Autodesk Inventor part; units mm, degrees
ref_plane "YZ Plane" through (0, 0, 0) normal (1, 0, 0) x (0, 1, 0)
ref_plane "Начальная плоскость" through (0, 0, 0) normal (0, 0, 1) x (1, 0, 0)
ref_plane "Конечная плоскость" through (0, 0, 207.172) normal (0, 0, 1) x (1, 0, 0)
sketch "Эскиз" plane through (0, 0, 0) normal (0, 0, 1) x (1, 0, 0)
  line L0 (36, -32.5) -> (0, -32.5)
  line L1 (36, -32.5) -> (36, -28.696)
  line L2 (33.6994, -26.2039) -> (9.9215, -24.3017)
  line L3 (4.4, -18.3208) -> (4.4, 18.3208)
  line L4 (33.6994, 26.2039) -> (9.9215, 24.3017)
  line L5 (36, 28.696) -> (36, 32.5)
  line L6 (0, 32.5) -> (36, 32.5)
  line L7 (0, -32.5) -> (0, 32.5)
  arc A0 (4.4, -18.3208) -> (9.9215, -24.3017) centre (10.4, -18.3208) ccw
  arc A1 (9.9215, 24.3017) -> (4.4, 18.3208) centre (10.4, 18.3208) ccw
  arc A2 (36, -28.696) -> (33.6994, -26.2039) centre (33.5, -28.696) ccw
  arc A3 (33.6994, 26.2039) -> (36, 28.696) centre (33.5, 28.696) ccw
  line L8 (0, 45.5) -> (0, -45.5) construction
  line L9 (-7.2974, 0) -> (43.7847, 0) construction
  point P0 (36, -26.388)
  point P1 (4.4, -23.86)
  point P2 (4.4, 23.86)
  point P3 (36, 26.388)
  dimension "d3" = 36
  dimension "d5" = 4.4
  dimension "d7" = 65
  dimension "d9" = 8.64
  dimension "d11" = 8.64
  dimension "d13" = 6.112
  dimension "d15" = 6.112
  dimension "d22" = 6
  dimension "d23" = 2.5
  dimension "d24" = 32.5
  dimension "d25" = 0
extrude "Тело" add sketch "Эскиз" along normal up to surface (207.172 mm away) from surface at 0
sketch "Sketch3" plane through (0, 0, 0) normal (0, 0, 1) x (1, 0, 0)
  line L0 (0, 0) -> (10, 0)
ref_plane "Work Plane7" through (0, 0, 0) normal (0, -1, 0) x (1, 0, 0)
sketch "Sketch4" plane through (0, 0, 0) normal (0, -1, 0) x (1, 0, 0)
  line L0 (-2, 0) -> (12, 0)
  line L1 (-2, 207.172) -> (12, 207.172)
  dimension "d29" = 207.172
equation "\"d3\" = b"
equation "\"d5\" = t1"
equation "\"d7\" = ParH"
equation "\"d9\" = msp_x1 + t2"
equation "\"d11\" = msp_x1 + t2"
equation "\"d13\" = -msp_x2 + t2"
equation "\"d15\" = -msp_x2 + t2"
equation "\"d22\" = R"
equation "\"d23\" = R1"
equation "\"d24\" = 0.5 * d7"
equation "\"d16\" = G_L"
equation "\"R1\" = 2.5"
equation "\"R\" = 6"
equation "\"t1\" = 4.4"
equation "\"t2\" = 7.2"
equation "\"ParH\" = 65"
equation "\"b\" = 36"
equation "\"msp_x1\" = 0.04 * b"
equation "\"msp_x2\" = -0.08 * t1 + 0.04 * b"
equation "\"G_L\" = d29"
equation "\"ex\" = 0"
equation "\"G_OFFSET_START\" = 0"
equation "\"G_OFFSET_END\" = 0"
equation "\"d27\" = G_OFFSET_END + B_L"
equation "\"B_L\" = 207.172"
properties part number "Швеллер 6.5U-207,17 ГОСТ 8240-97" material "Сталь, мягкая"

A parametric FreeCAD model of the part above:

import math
import FreeCAD as App
import Part
import Sketcher
Q = App.Units.Quantity

doc = App.newDocument("Part")
body = doc.addObject("PartDesign::Body", "Body")

# Sketch on XY plane
sketch1 = doc.addObject("Sketcher::SketchObject", "Sketch")
body.addObject(sketch1)
sketch1.AttachmentSupport = (doc.XY_Plane, [""])
sketch1.MapMode = "FlatFace"
sketch1.addGeometry(Part.LineSegment(App.Vector(0, -32.5, 0), App.Vector(36, -32.5, 0)), False)
sketch1.addGeometry(Part.LineSegment(App.Vector(36, -32.5, 0), App.Vector(36, -28.696, 0)), False)
sketch1.addGeometry(Part.ArcOfCircle(Part.Circle(App.Vector(33.5, -28.696, 0), App.Vector(0, 0, 1), 2.5), math.radians(0), math.radians(85.425348)), False)
sketch1.addGeometry(Part.LineSegment(App.Vector(33.6994, -26.2039, 0), App.Vector(9.9215, -24.3017, 0)), False)
sketch1.addGeometry(Part.ArcOfCircle(Part.Circle(App.Vector(10.4, -18.3208, 0), App.Vector(0, 0, 1), 6), math.radians(180), math.radians(265.425812)), False)
sketch1.addGeometry(Part.LineSegment(App.Vector(4.4, -18.3208, 0), App.Vector(4.4, 18.3208, 0)), False)
sketch1.addGeometry(Part.ArcOfCircle(Part.Circle(App.Vector(10.4, 18.3208, 0), App.Vector(0, 0, 1), 6.000011), math.radians(94.574188), math.radians(180)), False)
sketch1.addGeometry(Part.LineSegment(App.Vector(9.9215, 24.3017, 0), App.Vector(33.6994, 26.2039, 0)), False)
sketch1.addGeometry(Part.ArcOfCircle(Part.Circle(App.Vector(33.5, 28.696, 0), App.Vector(0, 0, 1), 2.500065), math.radians(-85.425348), math.radians(0)), False)
sketch1.addGeometry(Part.LineSegment(App.Vector(36, 28.696, 0), App.Vector(36, 32.5, 0)), False)
sketch1.addGeometry(Part.LineSegment(App.Vector(36, 32.5, 0), App.Vector(0, 32.5, 0)), False)
sketch1.addGeometry(Part.LineSegment(App.Vector(0, 32.5, 0), App.Vector(0, -32.5, 0)), False)
sketch1.addConstraint(Sketcher.Constraint("Coincident", 0, 2, 1, 1))
sketch1.addConstraint(Sketcher.Constraint("Tangent", 1, 2, 2, 1))
sketch1.addConstraint(Sketcher.Constraint("Tangent", 2, 2, 3, 1))
sketch1.addConstraint(Sketcher.Constraint("Tangent", 3, 2, 4, 2))
sketch1.addConstraint(Sketcher.Constraint("Tangent", 4, 1, 5, 1))
sketch1.addConstraint(Sketcher.Constraint("Tangent", 5, 2, 6, 2))
sketch1.addConstraint(Sketcher.Constraint("Tangent", 6, 1, 7, 1))
sketch1.addConstraint(Sketcher.Constraint("Tangent", 7, 2, 8, 1))
sketch1.addConstraint(Sketcher.Constraint("Tangent", 8, 2, 9, 1))
sketch1.addConstraint(Sketcher.Constraint("Coincident", 9, 2, 10, 1))
sketch1.addConstraint(Sketcher.Constraint("Coincident", 10, 2, 11, 1))
sketch1.addConstraint(Sketcher.Constraint("Coincident", 11, 2, 0, 1))
sketch1.addConstraint(Sketcher.Constraint("Horizontal", 0))
sketch1.addConstraint(Sketcher.Constraint("Vertical", 1))
sketch1.addConstraint(Sketcher.Constraint("Vertical", 5))
sketch1.addConstraint(Sketcher.Constraint("Vertical", 9))
sketch1.addConstraint(Sketcher.Constraint("Horizontal", 10))
sketch1.addConstraint(Sketcher.Constraint("Vertical", 11))
sketch1.addConstraint(Sketcher.Constraint("Equal", 4, 6))
sketch1.addConstraint(Sketcher.Constraint("Equal", 2, 8))
sketch1.addConstraint(Sketcher.Constraint("Symmetric", 10, 2, 11, 2, -1, 1))
sketch1.addConstraint(Sketcher.Constraint("Symmetric", 2, 3, 8, 3, -1))
sketch1.addConstraint(Sketcher.Constraint("Vertical", 3, 2, 6, 1))
sketch1.addConstraint(Sketcher.Constraint("Radius", 4, Q("6 mm")))
sketch1.addConstraint(Sketcher.Constraint("Radius", 2, Q("2.5 mm")))
sketch1.addConstraint(Sketcher.Constraint("DistanceX", 0, 1, 0, 2, Q("36 mm")))
sketch1.addConstraint(Sketcher.Constraint("DistanceY", 11, 2, 11, 1, Q("65 mm")))
sketch1.addConstraint(Sketcher.Constraint("DistanceX", -1, 1, 4, 1, Q("4.4 mm")))
sketch1.addConstraint(Sketcher.Constraint("DistanceY", 1, 1, 1, 2, Q("3.804 mm")))
sketch1.addConstraint(Sketcher.Constraint("DistanceY", 5, 1, 5, 2, Q("36.6416 mm")))
pad1 = doc.addObject("PartDesign::Pad", "Pad")
body.addObject(pad1)
pad1.Profile = sketch1
pad1.Length = 207.172

doc.recompute()
